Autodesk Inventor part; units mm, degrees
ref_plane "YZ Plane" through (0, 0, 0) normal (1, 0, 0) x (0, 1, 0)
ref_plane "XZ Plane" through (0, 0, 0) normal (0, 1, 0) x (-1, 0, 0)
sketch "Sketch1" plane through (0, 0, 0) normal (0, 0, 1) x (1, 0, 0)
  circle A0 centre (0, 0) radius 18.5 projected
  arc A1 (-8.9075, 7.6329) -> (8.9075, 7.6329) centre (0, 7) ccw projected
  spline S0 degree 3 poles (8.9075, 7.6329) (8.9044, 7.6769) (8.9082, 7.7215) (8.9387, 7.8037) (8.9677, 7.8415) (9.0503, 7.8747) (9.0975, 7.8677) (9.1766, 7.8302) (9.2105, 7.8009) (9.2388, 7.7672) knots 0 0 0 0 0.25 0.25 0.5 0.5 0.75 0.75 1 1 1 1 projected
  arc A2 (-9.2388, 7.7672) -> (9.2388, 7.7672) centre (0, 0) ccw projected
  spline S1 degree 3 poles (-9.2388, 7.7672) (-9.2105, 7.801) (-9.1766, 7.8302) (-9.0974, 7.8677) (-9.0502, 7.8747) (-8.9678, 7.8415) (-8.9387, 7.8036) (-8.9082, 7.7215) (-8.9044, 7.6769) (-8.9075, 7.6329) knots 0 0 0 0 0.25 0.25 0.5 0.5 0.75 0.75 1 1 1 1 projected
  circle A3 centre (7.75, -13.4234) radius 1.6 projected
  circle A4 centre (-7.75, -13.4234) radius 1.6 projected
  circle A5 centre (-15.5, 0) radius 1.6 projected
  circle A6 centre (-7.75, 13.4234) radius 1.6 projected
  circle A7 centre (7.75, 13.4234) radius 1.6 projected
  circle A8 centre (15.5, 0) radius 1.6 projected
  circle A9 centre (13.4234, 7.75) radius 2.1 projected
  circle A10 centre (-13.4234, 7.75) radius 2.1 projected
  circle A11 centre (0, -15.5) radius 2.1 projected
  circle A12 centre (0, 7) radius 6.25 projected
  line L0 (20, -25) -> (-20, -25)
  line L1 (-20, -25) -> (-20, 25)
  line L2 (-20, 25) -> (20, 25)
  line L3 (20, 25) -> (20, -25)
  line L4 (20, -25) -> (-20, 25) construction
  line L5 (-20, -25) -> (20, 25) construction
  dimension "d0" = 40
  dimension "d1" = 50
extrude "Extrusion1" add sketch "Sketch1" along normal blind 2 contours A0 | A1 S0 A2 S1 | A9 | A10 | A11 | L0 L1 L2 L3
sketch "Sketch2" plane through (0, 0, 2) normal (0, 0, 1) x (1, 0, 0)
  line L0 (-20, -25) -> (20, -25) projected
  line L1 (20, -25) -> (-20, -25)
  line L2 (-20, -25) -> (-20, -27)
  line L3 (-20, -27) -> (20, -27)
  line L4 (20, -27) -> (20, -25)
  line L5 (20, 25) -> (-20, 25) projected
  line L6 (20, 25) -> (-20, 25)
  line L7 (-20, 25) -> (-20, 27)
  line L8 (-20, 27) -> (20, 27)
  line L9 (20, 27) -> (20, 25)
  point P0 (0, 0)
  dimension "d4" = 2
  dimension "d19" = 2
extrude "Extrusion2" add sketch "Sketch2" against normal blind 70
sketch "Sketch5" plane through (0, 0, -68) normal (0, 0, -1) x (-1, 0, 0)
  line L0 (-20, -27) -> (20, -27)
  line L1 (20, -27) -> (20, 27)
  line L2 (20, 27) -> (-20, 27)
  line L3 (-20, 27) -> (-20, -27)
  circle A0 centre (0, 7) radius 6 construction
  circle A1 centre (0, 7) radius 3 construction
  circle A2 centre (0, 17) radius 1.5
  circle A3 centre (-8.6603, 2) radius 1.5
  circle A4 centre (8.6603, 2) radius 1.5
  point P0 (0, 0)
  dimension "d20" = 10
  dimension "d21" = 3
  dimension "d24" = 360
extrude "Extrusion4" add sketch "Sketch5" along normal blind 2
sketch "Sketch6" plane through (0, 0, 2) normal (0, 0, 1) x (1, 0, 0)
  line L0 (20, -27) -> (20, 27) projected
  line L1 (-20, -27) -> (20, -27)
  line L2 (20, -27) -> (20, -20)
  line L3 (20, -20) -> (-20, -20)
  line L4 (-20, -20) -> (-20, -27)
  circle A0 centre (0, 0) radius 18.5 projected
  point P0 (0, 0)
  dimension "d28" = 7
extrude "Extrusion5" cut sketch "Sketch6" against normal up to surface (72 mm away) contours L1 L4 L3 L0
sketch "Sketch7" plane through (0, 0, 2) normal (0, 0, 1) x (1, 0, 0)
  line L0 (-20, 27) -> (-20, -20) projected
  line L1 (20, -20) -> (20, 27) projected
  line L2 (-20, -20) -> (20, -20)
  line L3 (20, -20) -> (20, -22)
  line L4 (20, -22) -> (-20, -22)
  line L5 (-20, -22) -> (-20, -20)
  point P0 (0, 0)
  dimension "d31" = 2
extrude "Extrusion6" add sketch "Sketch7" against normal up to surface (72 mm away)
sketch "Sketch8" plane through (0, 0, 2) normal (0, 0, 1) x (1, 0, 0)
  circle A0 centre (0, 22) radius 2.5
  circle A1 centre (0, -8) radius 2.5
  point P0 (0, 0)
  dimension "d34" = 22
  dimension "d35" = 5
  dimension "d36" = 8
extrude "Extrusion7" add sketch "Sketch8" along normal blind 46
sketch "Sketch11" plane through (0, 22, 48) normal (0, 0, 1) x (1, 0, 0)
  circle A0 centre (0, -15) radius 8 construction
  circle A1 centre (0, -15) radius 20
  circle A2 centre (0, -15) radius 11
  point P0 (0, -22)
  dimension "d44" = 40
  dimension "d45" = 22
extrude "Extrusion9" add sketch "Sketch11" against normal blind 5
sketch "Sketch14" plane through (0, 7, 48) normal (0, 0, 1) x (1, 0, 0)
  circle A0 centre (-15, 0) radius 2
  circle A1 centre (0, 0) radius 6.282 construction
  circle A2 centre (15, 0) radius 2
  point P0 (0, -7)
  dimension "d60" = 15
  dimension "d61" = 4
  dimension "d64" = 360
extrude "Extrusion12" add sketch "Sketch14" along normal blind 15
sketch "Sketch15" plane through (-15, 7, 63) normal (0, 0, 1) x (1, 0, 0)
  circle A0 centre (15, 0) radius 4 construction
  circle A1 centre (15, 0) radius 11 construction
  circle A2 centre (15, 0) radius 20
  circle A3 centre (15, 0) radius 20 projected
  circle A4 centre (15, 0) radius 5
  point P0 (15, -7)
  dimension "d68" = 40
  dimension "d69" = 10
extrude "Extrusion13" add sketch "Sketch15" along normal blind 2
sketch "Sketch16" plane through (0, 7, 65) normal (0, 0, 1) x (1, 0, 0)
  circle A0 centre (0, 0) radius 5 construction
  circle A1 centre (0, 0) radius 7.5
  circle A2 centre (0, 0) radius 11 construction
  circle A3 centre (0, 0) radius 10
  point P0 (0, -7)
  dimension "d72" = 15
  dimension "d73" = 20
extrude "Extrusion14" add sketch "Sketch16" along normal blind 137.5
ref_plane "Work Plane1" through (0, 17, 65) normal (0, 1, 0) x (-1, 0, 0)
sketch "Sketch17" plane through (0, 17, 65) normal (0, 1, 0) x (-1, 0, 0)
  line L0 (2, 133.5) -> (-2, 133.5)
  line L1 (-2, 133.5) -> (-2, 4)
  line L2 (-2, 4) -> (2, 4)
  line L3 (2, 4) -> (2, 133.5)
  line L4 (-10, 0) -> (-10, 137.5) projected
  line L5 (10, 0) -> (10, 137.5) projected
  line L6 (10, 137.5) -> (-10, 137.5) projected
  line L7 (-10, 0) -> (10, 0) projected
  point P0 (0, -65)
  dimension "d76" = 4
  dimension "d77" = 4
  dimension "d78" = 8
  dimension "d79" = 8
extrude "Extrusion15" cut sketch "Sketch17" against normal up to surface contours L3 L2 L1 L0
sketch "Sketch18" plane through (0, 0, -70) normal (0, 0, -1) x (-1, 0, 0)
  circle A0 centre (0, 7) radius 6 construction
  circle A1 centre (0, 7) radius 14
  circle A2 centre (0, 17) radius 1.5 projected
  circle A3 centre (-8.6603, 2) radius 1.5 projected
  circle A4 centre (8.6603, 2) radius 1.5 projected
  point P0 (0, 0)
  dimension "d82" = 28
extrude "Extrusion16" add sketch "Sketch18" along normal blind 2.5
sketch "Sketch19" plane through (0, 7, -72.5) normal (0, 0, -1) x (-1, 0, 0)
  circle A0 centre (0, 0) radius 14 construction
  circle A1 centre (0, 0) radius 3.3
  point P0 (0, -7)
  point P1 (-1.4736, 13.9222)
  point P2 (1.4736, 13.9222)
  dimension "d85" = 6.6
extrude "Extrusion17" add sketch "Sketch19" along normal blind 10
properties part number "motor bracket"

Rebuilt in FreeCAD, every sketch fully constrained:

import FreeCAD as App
import Part
import Sketcher

V = App.Vector

doc = App.newDocument("Part")
body = doc.addObject("PartDesign::Body", "Body")

# Sketch on XY plane
sketch1 = body.newObject("Sketcher::SketchObject", "Sketch")
sketch1.AttachmentSupport = (doc.getObject("XY_Plane"), [""])
sketch1.MapMode = "FlatFace"
sketch1.addGeometry(Part.LineSegment(V(-20, -25, 0), V(20, -25, 0)), False)
sketch1.addGeometry(Part.LineSegment(V(20, -25, 0), V(20, 25, 0)), False)
sketch1.addGeometry(Part.LineSegment(V(20, 25, 0), V(-20, 25, 0)), False)
sketch1.addGeometry(Part.LineSegment(V(-20, 25, 0), V(-20, -25, 0)), False)
sketch1.addGeometry(Part.Circle(V(-7.8, -13.4, 0), V(0, 0, 1), 1.6), False)
sketch1.addGeometry(Part.Circle(V(7.8, -13.4, 0), V(0, 0, 1), 1.6), False)
sketch1.addGeometry(Part.Circle(V(-15.5, 0, 0), V(0, 0, 1), 1.6), False)
sketch1.addGeometry(Part.Circle(V(-7.8, 13.4, 0), V(0, 0, 1), 1.6), False)
sketch1.addGeometry(Part.Circle(V(0, 7, 0), V(0, 0, 1), 6.2), False)
sketch1.addGeometry(Part.Circle(V(15.5, 0, 0), V(0, 0, 1), 1.6), False)
sketch1.addGeometry(Part.Circle(V(7.8, 13.4, 0), V(0, 0, 1), 1.6), False)
sketch1.addConstraint(Sketcher.Constraint("Coincident", 0, 2, 1, 1))
sketch1.addConstraint(Sketcher.Constraint("Coincident", 1, 2, 2, 1))
sketch1.addConstraint(Sketcher.Constraint("Coincident", 2, 2, 3, 1))
sketch1.addConstraint(Sketcher.Constraint("Coincident", 3, 2, 0, 1))
sketch1.addConstraint(Sketcher.Constraint("Horizontal", 0))
sketch1.addConstraint(Sketcher.Constraint("Vertical", 1))
sketch1.addConstraint(Sketcher.Constraint("Horizontal", 2))
sketch1.addConstraint(Sketcher.Constraint("Vertical", 3))
sketch1.addConstraint(Sketcher.Constraint("Equal", 4, 5))
sketch1.addConstraint(Sketcher.Constraint("Equal", 5, 6))
sketch1.addConstraint(Sketcher.Constraint("Equal", 6, 7))
sketch1.addConstraint(Sketcher.Constraint("Equal", 7, 9))
sketch1.addConstraint(Sketcher.Constraint("Equal", 9, 10))
sketch1.addConstraint(Sketcher.Constraint("Symmetric", 5, 3, 7, 3, -1, 1))
sketch1.addConstraint(Sketcher.Constraint("Symmetric", 6, 3, 9, 3, -1, 1))
sketch1.addConstraint(Sketcher.Constraint("Symmetric", 4, 3, 10, 3, -1, 1))
sketch1.addConstraint(Sketcher.Constraint("Symmetric", 0, 2, 2, 2, -1, 1))
sketch1.addConstraint(Sketcher.Constraint("Symmetric", 4, 3, 5, 3, -2))
sketch1.addConstraint(Sketcher.Constraint("PointOnObject", 6, 3, -1))
sketch1.addConstraint(Sketcher.Constraint("PointOnObject", 8, 3, -2))
sketch1.addConstraint(Sketcher.Constraint("DistanceX", 0, 1, 0, 2, 40.0))
sketch1.addConstraint(Sketcher.Constraint("DistanceY", 1, 1, 1, 2, 50.0))
sketch1.addConstraint(Sketcher.Constraint("Diameter", 4, 3.2))
sketch1.addConstraint(Sketcher.Constraint("Diameter", 8, 12.5))
sketch1.addConstraint(Sketcher.Constraint("DistanceY", -1, 1, 8, 3, 7.0))
sketch1.addConstraint(Sketcher.Constraint("DistanceX", 6, 3, 9, 3, 31.0))
sketch1.addConstraint(Sketcher.Constraint("DistanceX", 4, 3, 5, 3, 15.5))
sketch1.addConstraint(Sketcher.Constraint("DistanceY", 4, 3, -1, 1, 13.4234))
pad1 = body.newObject("PartDesign::Pad", "Pad")
pad1.Profile = sketch1
pad1.Length = 2

# Sketch on XY plane
sketch2 = body.newObject("Sketcher::SketchObject", "Sketch001")
sketch2.AttachmentSupport = (doc.getObject("XY_Plane"), [""])
sketch2.MapMode = "FlatFace"
sketch2.AttachmentOffset = App.Placement(V(0, 0, 2), App.Rotation())
sketch2.addGeometry(Part.LineSegment(V(20, -25, 0), V(-20, -25, 0)), False)
sketch2.addGeometry(Part.LineSegment(V(-20, -25, 0), V(-20, -27, 0)), False)
sketch2.addGeometry(Part.LineSegment(V(-20, -27, 0), V(20, -27, 0)), False)
sketch2.addGeometry(Part.LineSegment(V(20, -27, 0), V(20, -25, 0)), False)
sketch2.addGeometry(Part.LineSegment(V(-20, 25, 0), V(20, 25, 0)), False)
sketch2.addGeometry(Part.LineSegment(V(20, 25, 0), V(20, 27, 0)), False)
sketch2.addGeometry(Part.LineSegment(V(20, 27, 0), V(-20, 27, 0)), False)
sketch2.addGeometry(Part.LineSegment(V(-20, 27, 0), V(-20, 25, 0)), False)
sketch2.addConstraint(Sketcher.Constraint("Coincident", 0, 2, 1, 1))
sketch2.addConstraint(Sketcher.Constraint("Coincident", 1, 2, 2, 1))
sketch2.addConstraint(Sketcher.Constraint("Coincident", 2, 2, 3, 1))
sketch2.addConstraint(Sketcher.Constraint("Coincident", 3, 2, 0, 1))
sketch2.addConstraint(Sketcher.Constraint("Coincident", 4, 2, 5, 1))
sketch2.addConstraint(Sketcher.Constraint("Coincident", 5, 2, 6, 1))
sketch2.addConstraint(Sketcher.Constraint("Coincident", 6, 2, 7, 1))
sketch2.addConstraint(Sketcher.Constraint("Coincident", 7, 2, 4, 1))
sketch2.addConstraint(Sketcher.Constraint("Horizontal", 0))
sketch2.addConstraint(Sketcher.Constraint("Vertical", 1))
sketch2.addConstraint(Sketcher.Constraint("Horizontal", 2))
sketch2.addConstraint(Sketcher.Constraint("Vertical", 3))
sketch2.addConstraint(Sketcher.Constraint("Horizontal", 4))
sketch2.addConstraint(Sketcher.Constraint("Vertical", 5))
sketch2.addConstraint(Sketcher.Constraint("Horizontal", 6))
sketch2.addConstraint(Sketcher.Constraint("Vertical", 7))
sketch2.addConstraint(Sketcher.Constraint("Symmetric", 0, 2, 4, 2, -1, 1))
sketch2.addConstraint(Sketcher.Constraint("Symmetric", 2, 2, 6, 2, -1, 1))
sketch2.addConstraint(Sketcher.Constraint("Vertical", 3, 2, 4, 2))
sketch2.addConstraint(Sketcher.Constraint("DistanceY", 1, 2, 1, 1, 2.0))
sketch2.addConstraint(Sketcher.Constraint("DistanceX", 0, 2, 0, 1, 40.0))
sketch2.addConstraint(Sketcher.Constraint("DistanceY", 0, 2, -1, 1, 25.0))
pad2 = body.newObject("PartDesign::Pad", "Pad001")
pad2.Profile = sketch2
pad2.Length = 70
pad2.Reversed = True

# Sketch on XY plane
sketch3 = body.newObject("Sketcher::SketchObject", "Sketch002")
sketch3.AttachmentSupport = (doc.getObject("XY_Plane"), [""])
sketch3.MapMode = "FlatFace"
sketch3.AttachmentOffset = App.Placement(V(0, 0, -68), App.Rotation())
sketch3.addGeometry(Part.LineSegment(V(20, 27, 0), V(20, -27, 0)), False)
sketch3.addGeometry(Part.LineSegment(V(20, -27, 0), V(-20, -27, 0)), False)
sketch3.addGeometry(Part.LineSegment(V(-20, -27, 0), V(-20, 27, 0)), False)
sketch3.addGeometry(Part.LineSegment(V(-20, 27, 0), V(20, 27, 0)), False)
sketch3.addGeometry(Part.Circle(V(8.7, 2, 0), V(0, 0, 1), 1.5), False)
sketch3.addGeometry(Part.Circle(V(-8.7, 2, 0), V(0, 0, 1), 1.5), False)
sketch3.addGeometry(Part.Circle(V(0, 17, 0), V(0, 0, 1), 1.5), False)
sketch3.addConstraint(Sketcher.Constraint("Coincident", 0, 2, 1, 1))
sketch3.addConstraint(Sketcher.Constraint("Coincident", 1, 2, 2, 1))
sketch3.addConstraint(Sketcher.Constraint("Coincident", 2, 2, 3, 1))
sketch3.addConstraint(Sketcher.Constraint("Coincident", 3, 2, 0, 1))
sketch3.addConstraint(Sketcher.Constraint("Vertical", 0))
sketch3.addConstraint(Sketcher.Constraint("Horizontal", 1))
sketch3.addConstraint(Sketcher.Constraint("Vertical", 2))
sketch3.addConstraint(Sketcher.Constraint("Horizontal", 3))
sketch3.addConstraint(Sketcher.Constraint("Equal", 4, 5))
sketch3.addConstraint(Sketcher.Constraint("Equal", 5, 6))
sketch3.addConstraint(Sketcher.Constraint("Symmetric", 0, 2, 2, 2, -1, 1))
sketch3.addConstraint(Sketcher.Constraint("Symmetric", 4, 3, 5, 3, -2))
sketch3.addConstraint(Sketcher.Constraint("PointOnObject", 6, 3, -2))
sketch3.addConstraint(Sketcher.Constraint("Diameter", 4, 3.0))
sketch3.addConstraint(Sketcher.Constraint("DistanceY", 6, 3, 2, 2, 10.0))
sketch3.addConstraint(Sketcher.Constraint("DistanceX", 1, 2, 1, 1, 40.0))
sketch3.addConstraint(Sketcher.Constraint("DistanceY", 0, 2, 0, 1, 54.0))
sketch3.addConstraint(Sketcher.Constraint("DistanceY", -1, 1, 4, 3, 2.0))
sketch3.addConstraint(Sketcher.Constraint("DistanceX", -1, 1, 4, 3, 8.6603))
pad3 = body.newObject("PartDesign::Pad", "Pad002")
pad3.Profile = sketch3
pad3.Length = 2
pad3.Reversed = True

# Sketch on XY plane
sketch4 = body.newObject("Sketcher::SketchObject", "Sketch003")
sketch4.AttachmentSupport = (doc.getObject("XY_Plane"), [""])
sketch4.MapMode = "FlatFace"
sketch4.AttachmentOffset = App.Placement(V(0, 0, 2), App.Rotation())
sketch4.addGeometry(Part.LineSegment(V(-20, -27, 0), V(20, -27, 0)), False)
sketch4.addGeometry(Part.LineSegment(V(20, -27, 0), V(20, -20, 0)), False)
sketch4.addGeometry(Part.LineSegment(V(20, -20, 0), V(-20, -20, 0)), False)
sketch4.addGeometry(Part.LineSegment(V(-20, -20, 0), V(-20, -27, 0)), False)
sketch4.addConstraint(Sketcher.Constraint("Coincident", 0, 2, 1, 1))
sketch4.addConstraint(Sketcher.Constraint("Coincident", 1, 2, 2, 1))
sketch4.addConstraint(Sketcher.Constraint("Coincident", 2, 2, 3, 1))
sketch4.addConstraint(Sketcher.Constraint("Coincident", 3, 2, 0, 1))
sketch4.addConstraint(Sketcher.Constraint("Horizontal", 0))
sketch4.addConstraint(Sketcher.Constraint("Vertical", 1))
sketch4.addConstraint(Sketcher.Constraint("Horizontal", 2))
sketch4.addConstraint(Sketcher.Constraint("Vertical", 3))
sketch4.addConstraint(Sketcher.Constraint("DistanceY", 1, 1, 1, 2, 7.0))
sketch4.addConstraint(Sketcher.Constraint("DistanceX", 0, 1, 0, 2, 40.0))
sketch4.addConstraint(Sketcher.Constraint("DistanceX", -1, 1, 0, 2, 20.0))
sketch4.addConstraint(Sketcher.Constraint("DistanceY", 0, 2, -1, 1, 27.0))
pocket1 = body.newObject("PartDesign::Pocket", "Pocket")
pocket1.Profile = sketch4
pocket1.Length = 72

# Sketch on XY plane
sketch5 = body.newObject("Sketcher::SketchObject", "Sketch004")
sketch5.AttachmentSupport = (doc.getObject("XY_Plane"), [""])
sketch5.MapMode = "FlatFace"
sketch5.AttachmentOffset = App.Placement(V(0, 0, 2), App.Rotation())
sketch5.addGeometry(Part.LineSegment(V(20, -20, 0), V(-20, -20, 0)), False)
sketch5.addGeometry(Part.LineSegment(V(-20, -20, 0), V(-20, -22, 0)), False)
sketch5.addGeometry(Part.LineSegment(V(-20, -22, 0), V(20, -22, 0)), False)
sketch5.addGeometry(Part.LineSegment(V(20, -22, 0), V(20, -20, 0)), False)
sketch5.addConstraint(Sketcher.Constraint("Coincident", 0, 2, 1, 1))
sketch5.addConstraint(Sketcher.Constraint("Coincident", 1, 2, 2, 1))
sketch5.addConstraint(Sketcher.Constraint("Coincident", 2, 2, 3, 1))
sketch5.addConstraint(Sketcher.Constraint("Coincident", 3, 2, 0, 1))
sketch5.addConstraint(Sketcher.Constraint("Horizontal", 0))
sketch5.addConstraint(Sketcher.Constraint("Vertical", 1))
sketch5.addConstraint(Sketcher.Constraint("Horizontal", 2))
sketch5.addConstraint(Sketcher.Constraint("Vertical", 3))
sketch5.addConstraint(Sketcher.Constraint("DistanceY", 1, 2, 1, 1, 2.0))
sketch5.addConstraint(Sketcher.Constraint("DistanceX", 0, 2, 0, 1, 40.0))
sketch5.addConstraint(Sketcher.Constraint("DistanceX", 0, 2, -1, 1, 20.0))
sketch5.addConstraint(Sketcher.Constraint("DistanceY", 0, 2, -1, 1, 20.0))
pad4 = body.newObject("PartDesign::Pad", "Pad003")
pad4.Profile = sketch5
pad4.Length = 72
pad4.Reversed = True

# Sketch on XY plane
sketch6 = body.newObject("Sketcher::SketchObject", "Sketch005")
sketch6.AttachmentSupport = (doc.getObject("XY_Plane"), [""])
sketch6.MapMode = "FlatFace"
sketch6.AttachmentOffset = App.Placement(V(0, 0, 2), App.Rotation())
sketch6.addGeometry(Part.Circle(V(0, 22, 0), V(0, 0, 1), 2.5), False)
sketch6.addGeometry(Part.Circle(V(0, -8, 0), V(0, 0, 1), 2.5), False)
sketch6.addConstraint(Sketcher.Constraint("Equal", 0, 1))
sketch6.addConstraint(Sketcher.Constraint("PointOnObject", 0, 3, -2))
sketch6.addConstraint(Sketcher.Constraint("PointOnObject", 1, 3, -2))
sketch6.addConstraint(Sketcher.Constraint("Diameter", 0, 5.0))
sketch6.addConstraint(Sketcher.Constraint("DistanceY", -1, 1, 0, 3, 22.0))
sketch6.addConstraint(Sketcher.Constraint("DistanceY", 1, 3, -1, 1, 8.0))
pad5 = body.newObject("PartDesign::Pad", "Pad004")
pad5.Profile = sketch6
pad5.Length = 46

# Sketch on XY plane
sketch7 = body.newObject("Sketcher::SketchObject", "Sketch006")
sketch7.AttachmentSupport = (doc.getObject("XY_Plane"), [""])
sketch7.MapMode = "FlatFace"
sketch7.AttachmentOffset = App.Placement(V(0, 0, 48), App.Rotation())
sketch7.addGeometry(Part.Circle(V(0, 7, 0), V(0, 0, 1), 20), False)
sketch7.addGeometry(Part.Circle(V(0, 7, 0), V(0, 0, 1), 11), False)
sketch7.addConstraint(Sketcher.Constraint("Coincident", 1, 3, 0, 3))
sketch7.addConstraint(Sketcher.Constraint("PointOnObject", 0, 3, -2))
sketch7.addConstraint(Sketcher.Constraint("Diameter", 0, 40.0))
sketch7.addConstraint(Sketcher.Constraint("Diameter", 1, 22.0))
sketch7.addConstraint(Sketcher.Constraint("DistanceY", -1, 1, 0, 3, 7.0))
pad6 = body.newObject("PartDesign::Pad", "Pad005")
pad6.Profile = sketch7
pad6.Length = 5
pad6.Reversed = True

# Sketch on XY plane
sketch8 = body.newObject("Sketcher::SketchObject", "Sketch007")
sketch8.AttachmentSupport = (doc.getObject("XY_Plane"), [""])
sketch8.MapMode = "FlatFace"
sketch8.AttachmentOffset = App.Placement(V(0, 0, 48), App.Rotation())
sketch8.addGeometry(Part.Circle(V(-15, 7, 0), V(0, 0, 1), 2), False)
sketch8.addGeometry(Part.Circle(V(15, 7, 0), V(0, 0, 1), 2), False)
sketch8.addConstraint(Sketcher.Constraint("Equal", 0, 1))
sketch8.addConstraint(Sketcher.Constraint("Symmetric", 0, 3, 1, 3, -2))
sketch8.addConstraint(Sketcher.Constraint("Diameter", 0, 4.0))
sketch8.addConstraint(Sketcher.Constraint("DistanceX", 0, 3, -1, 1, 15.0))
sketch8.addConstraint(Sketcher.Constraint("DistanceY", -1, 1, 0, 3, 7.0))
pad7 = body.newObject("PartDesign::Pad", "Pad006")
pad7.Profile = sketch8
pad7.Length = 15

# Sketch on XY plane
sketch9 = body.newObject("Sketcher::SketchObject", "Sketch008")
sketch9.AttachmentSupport = (doc.getObject("XY_Plane"), [""])
sketch9.MapMode = "FlatFace"
sketch9.AttachmentOffset = App.Placement(V(0, 0, 63), App.Rotation())
sketch9.addGeometry(Part.Circle(V(0, 7, 0), V(0, 0, 1), 20), False)
sketch9.addGeometry(Part.Circle(V(0, 7, 0), V(0, 0, 1), 5), False)
sketch9.addConstraint(Sketcher.Constraint("Coincident", 1, 3, 0, 3))
sketch9.addConstraint(Sketcher.Constraint("PointOnObject", 0, 3, -2))
sketch9.addConstraint(Sketcher.Constraint("Diameter", 0, 40.0))
sketch9.addConstraint(Sketcher.Constraint("Diameter", 1, 10.0))
sketch9.addConstraint(Sketcher.Constraint("DistanceY", -1, 1, 0, 3, 7.0))
pad8 = body.newObject("PartDesign::Pad", "Pad007")
pad8.Profile = sketch9
pad8.Length = 2

# Sketch on XY plane
sketch10 = body.newObject("Sketcher::SketchObject", "Sketch009")
sketch10.AttachmentSupport = (doc.getObject("XY_Plane"), [""])
sketch10.MapMode = "FlatFace"
sketch10.AttachmentOffset = App.Placement(V(0, 0, 65), App.Rotation())
sketch10.addGeometry(Part.Circle(V(0, 7, 0), V(0, 0, 1), 10), False)
sketch10.addGeometry(Part.Circle(V(0, 7, 0), V(0, 0, 1), 8), False)
sketch10.addConstraint(Sketcher.Constraint("Coincident", 1, 3, 0, 3))
sketch10.addConstraint(Sketcher.Constraint("PointOnObject", 0, 3, -2))
sketch10.addConstraint(Sketcher.Constraint("Diameter", 0, 20.0))
sketch10.addConstraint(Sketcher.Constraint("Diameter", 1, 15.0))
sketch10.addConstraint(Sketcher.Constraint("DistanceY", -1, 1, 0, 3, 7.0))
pad9 = body.newObject("PartDesign::Pad", "Pad008")
pad9.Profile = sketch10
pad9.Length = 137.5

# Sketch on XZ plane
sketch11 = body.newObject("Sketcher::SketchObject", "Sketch010")
sketch11.AttachmentSupport = (doc.getObject("XZ_Plane"), [""])
sketch11.MapMode = "FlatFace"
sketch11.AttachmentOffset = App.Placement(V(0, 0, -17), App.Rotation())
sketch11.addGeometry(Part.LineSegment(V(-2, 69, 0), V(-2, 198.5, 0)), False)
sketch11.addGeometry(Part.LineSegment(V(-2, 198.5, 0), V(2, 198.5, 0)), False)
sketch11.addGeometry(Part.LineSegment(V(2, 198.5, 0), V(2, 69, 0)), False)
sketch11.addGeometry(Part.LineSegment(V(2, 69, 0), V(-2, 69, 0)), False)
sketch11.addConstraint(Sketcher.Constraint("Coincident", 0, 2, 1, 1))
sketch11.addConstraint(Sketcher.Constraint("Coincident", 1, 2, 2, 1))
sketch11.addConstraint(Sketcher.Constraint("Coincident", 2, 2, 3, 1))
sketch11.addConstraint(Sketcher.Constraint("Coincident", 3, 2, 0, 1))
sketch11.addConstraint(Sketcher.Constraint("Vertical", 0))
sketch11.addConstraint(Sketcher.Constraint("Horizontal", 1))
sketch11.addConstraint(Sketcher.Constraint("Vertical", 2))
sketch11.addConstraint(Sketcher.Constraint("Horizontal", 3))
sketch11.addConstraint(Sketcher.Constraint("DistanceX", 1, 1, 1, 2, 4.0))
sketch11.addConstraint(Sketcher.Constraint("DistanceY", 0, 1, 0, 2, 129.5))
sketch11.addConstraint(Sketcher.Constraint("DistanceX", 0, 2, -1, 1, 2.0))
sketch11.addConstraint(Sketcher.Constraint("DistanceY", -1, 1, 2, 2, 69.0))
pocket2 = body.newObject("PartDesign::Pocket", "Pocket001")
pocket2.Profile = sketch11
pocket2.Type = "UpToFirst"
pocket2.Reversed = True

# Sketch on XY plane
sketch12 = body.newObject("Sketcher::SketchObject", "Sketch011")
sketch12.AttachmentSupport = (doc.getObject("XY_Plane"), [""])
sketch12.MapMode = "FlatFace"
sketch12.AttachmentOffset = App.Placement(V(0, 0, -70), App.Rotation())
sketch12.addGeometry(Part.Circle(V(0, 7, 0), V(0, 0, 1), 14), False)
sketch12.addGeometry(Part.Circle(V(8.7, 2, 0), V(0, 0, 1), 1.5), False)
sketch12.addGeometry(Part.Circle(V(-8.7, 2, 0), V(0, 0, 1), 1.5), False)
sketch12.addGeometry(Part.Circle(V(0, 17, 0), V(0, 0, 1), 1.5), False)
sketch12.addConstraint(Sketcher.Constraint("Equal", 1, 2))
sketch12.addConstraint(Sketcher.Constraint("Equal", 2, 3))
sketch12.addConstraint(Sketcher.Constraint("Symmetric", 1, 3, 2, 3, -2))
sketch12.addConstraint(Sketcher.Constraint("PointOnObject", 0, 3, -2))
sketch12.addConstraint(Sketcher.Constraint("PointOnObject", 3, 3, -2))
sketch12.addConstraint(Sketcher.Constraint("Diameter", 0, 28.0))
sketch12.addConstraint(Sketcher.Constraint("Diameter", 1, 3.0))
sketch12.addConstraint(Sketcher.Constraint("DistanceY", -1, 1, 0, 3, 7.0))
sketch12.addConstraint(Sketcher.Constraint("DistanceY", -1, 1, 1, 3, 2.0))
sketch12.addConstraint(Sketcher.Constraint("DistanceY", -1, 1, 3, 3, 17.0))
sketch12.addConstraint(Sketcher.Constraint("DistanceX", -1, 1, 1, 3, 8.6603))
pad10 = body.newObject("PartDesign::Pad", "Pad009")
pad10.Profile = sketch12
pad10.Length = 2.5
pad10.Reversed = True

# Sketch on XY plane
sketch13 = body.newObject("Sketcher::SketchObject", "Sketch012")
sketch13.AttachmentSupport = (doc.getObject("XY_Plane"), [""])
sketch13.MapMode = "FlatFace"
sketch13.AttachmentOffset = App.Placement(V(0, 0, -72.5), App.Rotation())
sketch13.addGeometry(Part.Circle(V(0, 7, 0), V(0, 0, 1), 3.3), False)
sketch13.addConstraint(Sketcher.Constraint("PointOnObject", 0, 3, -2))
sketch13.addConstraint(Sketcher.Constraint("Diameter", 0, 6.6))
sketch13.addConstraint(Sketcher.Constraint("DistanceY", -1, 1, 0, 3, 7.0))
pad11 = body.newObject("PartDesign::Pad", "Pad010")
pad11.Profile = sketch13
pad11.Length = 10
pad11.Reversed = True

doc.recompute()
